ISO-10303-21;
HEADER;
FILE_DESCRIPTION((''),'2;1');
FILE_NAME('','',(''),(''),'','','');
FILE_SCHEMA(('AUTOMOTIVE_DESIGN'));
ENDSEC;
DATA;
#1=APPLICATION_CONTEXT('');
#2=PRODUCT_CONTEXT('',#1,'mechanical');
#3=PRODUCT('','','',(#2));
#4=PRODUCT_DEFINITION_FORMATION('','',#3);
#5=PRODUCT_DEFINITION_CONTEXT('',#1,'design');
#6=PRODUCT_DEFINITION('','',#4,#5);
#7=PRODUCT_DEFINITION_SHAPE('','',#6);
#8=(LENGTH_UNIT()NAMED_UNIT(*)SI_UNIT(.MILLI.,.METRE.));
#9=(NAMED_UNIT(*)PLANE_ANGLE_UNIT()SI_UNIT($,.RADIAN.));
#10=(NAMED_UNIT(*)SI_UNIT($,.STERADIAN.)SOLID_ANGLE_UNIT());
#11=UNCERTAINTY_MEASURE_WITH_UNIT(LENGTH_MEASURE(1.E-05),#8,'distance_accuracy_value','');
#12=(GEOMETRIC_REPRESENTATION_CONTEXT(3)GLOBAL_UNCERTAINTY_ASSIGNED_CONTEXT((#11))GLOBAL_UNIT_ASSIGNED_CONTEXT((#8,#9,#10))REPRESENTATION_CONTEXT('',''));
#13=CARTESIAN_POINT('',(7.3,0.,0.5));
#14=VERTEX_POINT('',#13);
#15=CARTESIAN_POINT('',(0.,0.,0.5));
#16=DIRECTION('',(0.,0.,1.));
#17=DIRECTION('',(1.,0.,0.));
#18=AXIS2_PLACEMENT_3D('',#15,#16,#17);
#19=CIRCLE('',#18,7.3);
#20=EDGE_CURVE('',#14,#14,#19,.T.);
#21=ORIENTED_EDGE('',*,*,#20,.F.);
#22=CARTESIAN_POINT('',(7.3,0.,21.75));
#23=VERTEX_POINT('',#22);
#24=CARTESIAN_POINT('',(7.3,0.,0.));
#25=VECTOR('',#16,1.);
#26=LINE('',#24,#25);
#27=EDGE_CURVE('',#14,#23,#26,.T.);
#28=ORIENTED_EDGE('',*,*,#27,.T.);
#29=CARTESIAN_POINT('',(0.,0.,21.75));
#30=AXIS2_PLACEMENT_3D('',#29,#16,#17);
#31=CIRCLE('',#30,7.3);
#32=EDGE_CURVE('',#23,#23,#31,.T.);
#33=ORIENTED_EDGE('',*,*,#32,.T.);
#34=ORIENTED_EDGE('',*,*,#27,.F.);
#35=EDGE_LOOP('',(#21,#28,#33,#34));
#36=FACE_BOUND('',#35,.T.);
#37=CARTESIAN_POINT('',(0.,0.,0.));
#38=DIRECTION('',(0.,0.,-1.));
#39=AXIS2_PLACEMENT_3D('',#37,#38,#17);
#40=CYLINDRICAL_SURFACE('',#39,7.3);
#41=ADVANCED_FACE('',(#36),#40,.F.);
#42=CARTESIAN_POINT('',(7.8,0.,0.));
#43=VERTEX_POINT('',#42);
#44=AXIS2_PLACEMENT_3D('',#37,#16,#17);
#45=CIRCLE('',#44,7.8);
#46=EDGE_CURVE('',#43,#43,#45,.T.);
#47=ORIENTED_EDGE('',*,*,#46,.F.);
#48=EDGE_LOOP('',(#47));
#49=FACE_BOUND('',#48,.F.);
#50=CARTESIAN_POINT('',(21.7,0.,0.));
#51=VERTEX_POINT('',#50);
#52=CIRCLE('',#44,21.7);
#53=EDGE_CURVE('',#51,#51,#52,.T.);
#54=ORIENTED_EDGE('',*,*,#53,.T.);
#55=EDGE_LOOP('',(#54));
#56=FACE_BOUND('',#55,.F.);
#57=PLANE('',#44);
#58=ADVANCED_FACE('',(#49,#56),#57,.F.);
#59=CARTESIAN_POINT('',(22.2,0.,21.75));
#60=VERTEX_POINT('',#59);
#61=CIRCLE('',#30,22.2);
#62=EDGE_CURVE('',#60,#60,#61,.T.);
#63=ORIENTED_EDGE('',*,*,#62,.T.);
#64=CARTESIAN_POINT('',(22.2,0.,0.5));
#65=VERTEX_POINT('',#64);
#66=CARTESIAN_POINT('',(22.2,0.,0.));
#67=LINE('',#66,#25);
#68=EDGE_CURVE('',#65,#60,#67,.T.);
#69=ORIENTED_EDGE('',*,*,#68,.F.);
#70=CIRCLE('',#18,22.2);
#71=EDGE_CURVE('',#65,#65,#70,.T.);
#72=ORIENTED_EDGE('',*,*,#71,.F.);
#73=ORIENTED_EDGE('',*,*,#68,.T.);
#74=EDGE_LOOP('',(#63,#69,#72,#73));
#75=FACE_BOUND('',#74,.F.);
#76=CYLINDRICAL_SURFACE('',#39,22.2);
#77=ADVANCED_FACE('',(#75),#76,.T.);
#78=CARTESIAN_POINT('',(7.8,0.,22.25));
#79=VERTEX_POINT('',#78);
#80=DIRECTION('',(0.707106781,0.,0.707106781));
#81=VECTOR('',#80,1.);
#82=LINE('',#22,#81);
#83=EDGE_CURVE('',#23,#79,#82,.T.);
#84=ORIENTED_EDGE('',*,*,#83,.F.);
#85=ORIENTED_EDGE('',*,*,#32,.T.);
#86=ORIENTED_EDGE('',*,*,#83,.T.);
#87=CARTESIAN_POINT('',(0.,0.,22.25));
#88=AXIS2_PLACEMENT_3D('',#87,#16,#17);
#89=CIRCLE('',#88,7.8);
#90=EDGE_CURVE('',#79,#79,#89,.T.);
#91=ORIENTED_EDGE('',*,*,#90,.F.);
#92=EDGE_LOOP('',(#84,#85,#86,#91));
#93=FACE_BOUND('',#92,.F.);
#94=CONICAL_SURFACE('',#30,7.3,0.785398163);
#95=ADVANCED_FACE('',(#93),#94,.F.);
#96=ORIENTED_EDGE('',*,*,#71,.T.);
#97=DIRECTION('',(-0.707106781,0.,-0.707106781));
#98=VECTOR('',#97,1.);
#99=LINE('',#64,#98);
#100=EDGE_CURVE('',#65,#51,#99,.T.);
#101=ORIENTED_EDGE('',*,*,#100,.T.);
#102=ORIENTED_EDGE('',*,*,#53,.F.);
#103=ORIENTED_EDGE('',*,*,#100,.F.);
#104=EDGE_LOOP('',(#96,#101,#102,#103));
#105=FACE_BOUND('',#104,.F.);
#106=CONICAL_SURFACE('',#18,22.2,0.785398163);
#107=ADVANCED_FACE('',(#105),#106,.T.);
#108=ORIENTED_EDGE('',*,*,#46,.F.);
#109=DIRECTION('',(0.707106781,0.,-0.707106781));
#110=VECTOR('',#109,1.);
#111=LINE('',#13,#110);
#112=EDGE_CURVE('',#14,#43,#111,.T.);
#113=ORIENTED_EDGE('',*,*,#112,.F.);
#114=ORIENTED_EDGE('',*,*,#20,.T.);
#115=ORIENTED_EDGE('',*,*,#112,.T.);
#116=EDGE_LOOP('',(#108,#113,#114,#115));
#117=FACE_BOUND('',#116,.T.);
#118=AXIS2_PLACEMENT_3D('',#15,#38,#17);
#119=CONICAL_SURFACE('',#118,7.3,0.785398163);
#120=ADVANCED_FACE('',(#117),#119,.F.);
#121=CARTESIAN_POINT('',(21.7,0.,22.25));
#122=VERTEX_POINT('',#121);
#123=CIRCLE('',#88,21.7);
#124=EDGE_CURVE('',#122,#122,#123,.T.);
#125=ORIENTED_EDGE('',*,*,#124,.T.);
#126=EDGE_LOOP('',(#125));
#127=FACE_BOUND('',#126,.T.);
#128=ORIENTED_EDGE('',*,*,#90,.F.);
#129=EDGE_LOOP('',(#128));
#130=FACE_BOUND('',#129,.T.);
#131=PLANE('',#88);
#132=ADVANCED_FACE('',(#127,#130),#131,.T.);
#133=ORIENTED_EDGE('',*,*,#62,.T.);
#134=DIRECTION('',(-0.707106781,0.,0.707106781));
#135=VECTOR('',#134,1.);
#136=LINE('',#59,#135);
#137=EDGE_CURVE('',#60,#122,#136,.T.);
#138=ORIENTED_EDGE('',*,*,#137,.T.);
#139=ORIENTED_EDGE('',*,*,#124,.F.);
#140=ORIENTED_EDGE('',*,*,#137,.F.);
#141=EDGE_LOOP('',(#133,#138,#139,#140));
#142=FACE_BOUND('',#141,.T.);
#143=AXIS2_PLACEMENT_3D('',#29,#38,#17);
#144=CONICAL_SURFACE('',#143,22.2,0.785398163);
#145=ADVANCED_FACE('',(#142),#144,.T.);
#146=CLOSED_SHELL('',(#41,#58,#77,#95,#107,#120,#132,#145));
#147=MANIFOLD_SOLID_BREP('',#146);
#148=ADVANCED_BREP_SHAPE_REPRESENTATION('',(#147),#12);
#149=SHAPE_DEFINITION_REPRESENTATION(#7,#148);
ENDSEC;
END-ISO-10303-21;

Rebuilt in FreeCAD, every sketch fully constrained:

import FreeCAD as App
import Part
import Sketcher
Q = App.Units.Quantity


def edges_at(feature, points):
    """Names of the edges that pass closest to the given points."""
    edges = feature.Shape.Edges
    near = lambda p: min(range(len(edges)), key=lambda i: edges[i].distToShape(Part.Vertex(*p))[0])
    return sorted({f"Edge{near(p) + 1}" for p in points})

doc = App.newDocument("Part")
params = doc.addObject("Spreadsheet::Sheet", "Params")
for row, (alias, value) in enumerate([
    ("sketch1_diameter", "44.4 mm"),
    ("sketch1_diameter2", "14.6 mm"),
    ("pad1_length", "22.25 mm"),
    ("chamfer_size", "0.5 mm"),
], start=1):
    params.set(f"A{row}", alias)
    params.set(f"B{row}", "=" + value)
    params.setAlias(f"B{row}", alias)

body = doc.addObject("PartDesign::Body", "Body")

# Sketch on XY plane
sketch1 = body.newObject("Sketcher::SketchObject", "Sketch")
sketch1.AttachmentSupport = (doc.getObject("XY_Plane"), [""])
sketch1.MapMode = "FlatFace"
sketch1.addGeometry([
    Part.Circle(App.Vector(0, 0, 0), App.Vector(0, 0, 1), 22),
    Part.Circle(App.Vector(0, 0, 0), App.Vector(0, 0, 1), 7),
], False)
sketch1.addConstraint([
    Sketcher.Constraint("Coincident", 0, 3, -1, 1),
    Sketcher.Constraint("Coincident", 1, 3, -1, 1),
    Sketcher.Constraint("Diameter", 0, Q("44.4 mm")),
    Sketcher.Constraint("Diameter", 1, Q("14.6 mm")),
])
sketch1.setExpression("Constraints[2]", "Params.sketch1_diameter")
sketch1.setExpression("Constraints[3]", "Params.sketch1_diameter2")
pad1 = body.newObject("PartDesign::Pad", "Pad")
pad1.Profile = sketch1
pad1.setExpression("Length", "Params.pad1_length")
doc.recompute()

chamfer = body.newObject("PartDesign::Chamfer", "Chamfer")
chamfer.Base = (pad1, edges_at(pad1, [
    (-7.3, 0, 22.25),
    (-7.3, 0, 0),
    (-22.2, 0, 22.25),
    (-22.2, 0, 0),
]))
chamfer.setExpression("Size", "Params.chamfer_size")

doc.recompute()
